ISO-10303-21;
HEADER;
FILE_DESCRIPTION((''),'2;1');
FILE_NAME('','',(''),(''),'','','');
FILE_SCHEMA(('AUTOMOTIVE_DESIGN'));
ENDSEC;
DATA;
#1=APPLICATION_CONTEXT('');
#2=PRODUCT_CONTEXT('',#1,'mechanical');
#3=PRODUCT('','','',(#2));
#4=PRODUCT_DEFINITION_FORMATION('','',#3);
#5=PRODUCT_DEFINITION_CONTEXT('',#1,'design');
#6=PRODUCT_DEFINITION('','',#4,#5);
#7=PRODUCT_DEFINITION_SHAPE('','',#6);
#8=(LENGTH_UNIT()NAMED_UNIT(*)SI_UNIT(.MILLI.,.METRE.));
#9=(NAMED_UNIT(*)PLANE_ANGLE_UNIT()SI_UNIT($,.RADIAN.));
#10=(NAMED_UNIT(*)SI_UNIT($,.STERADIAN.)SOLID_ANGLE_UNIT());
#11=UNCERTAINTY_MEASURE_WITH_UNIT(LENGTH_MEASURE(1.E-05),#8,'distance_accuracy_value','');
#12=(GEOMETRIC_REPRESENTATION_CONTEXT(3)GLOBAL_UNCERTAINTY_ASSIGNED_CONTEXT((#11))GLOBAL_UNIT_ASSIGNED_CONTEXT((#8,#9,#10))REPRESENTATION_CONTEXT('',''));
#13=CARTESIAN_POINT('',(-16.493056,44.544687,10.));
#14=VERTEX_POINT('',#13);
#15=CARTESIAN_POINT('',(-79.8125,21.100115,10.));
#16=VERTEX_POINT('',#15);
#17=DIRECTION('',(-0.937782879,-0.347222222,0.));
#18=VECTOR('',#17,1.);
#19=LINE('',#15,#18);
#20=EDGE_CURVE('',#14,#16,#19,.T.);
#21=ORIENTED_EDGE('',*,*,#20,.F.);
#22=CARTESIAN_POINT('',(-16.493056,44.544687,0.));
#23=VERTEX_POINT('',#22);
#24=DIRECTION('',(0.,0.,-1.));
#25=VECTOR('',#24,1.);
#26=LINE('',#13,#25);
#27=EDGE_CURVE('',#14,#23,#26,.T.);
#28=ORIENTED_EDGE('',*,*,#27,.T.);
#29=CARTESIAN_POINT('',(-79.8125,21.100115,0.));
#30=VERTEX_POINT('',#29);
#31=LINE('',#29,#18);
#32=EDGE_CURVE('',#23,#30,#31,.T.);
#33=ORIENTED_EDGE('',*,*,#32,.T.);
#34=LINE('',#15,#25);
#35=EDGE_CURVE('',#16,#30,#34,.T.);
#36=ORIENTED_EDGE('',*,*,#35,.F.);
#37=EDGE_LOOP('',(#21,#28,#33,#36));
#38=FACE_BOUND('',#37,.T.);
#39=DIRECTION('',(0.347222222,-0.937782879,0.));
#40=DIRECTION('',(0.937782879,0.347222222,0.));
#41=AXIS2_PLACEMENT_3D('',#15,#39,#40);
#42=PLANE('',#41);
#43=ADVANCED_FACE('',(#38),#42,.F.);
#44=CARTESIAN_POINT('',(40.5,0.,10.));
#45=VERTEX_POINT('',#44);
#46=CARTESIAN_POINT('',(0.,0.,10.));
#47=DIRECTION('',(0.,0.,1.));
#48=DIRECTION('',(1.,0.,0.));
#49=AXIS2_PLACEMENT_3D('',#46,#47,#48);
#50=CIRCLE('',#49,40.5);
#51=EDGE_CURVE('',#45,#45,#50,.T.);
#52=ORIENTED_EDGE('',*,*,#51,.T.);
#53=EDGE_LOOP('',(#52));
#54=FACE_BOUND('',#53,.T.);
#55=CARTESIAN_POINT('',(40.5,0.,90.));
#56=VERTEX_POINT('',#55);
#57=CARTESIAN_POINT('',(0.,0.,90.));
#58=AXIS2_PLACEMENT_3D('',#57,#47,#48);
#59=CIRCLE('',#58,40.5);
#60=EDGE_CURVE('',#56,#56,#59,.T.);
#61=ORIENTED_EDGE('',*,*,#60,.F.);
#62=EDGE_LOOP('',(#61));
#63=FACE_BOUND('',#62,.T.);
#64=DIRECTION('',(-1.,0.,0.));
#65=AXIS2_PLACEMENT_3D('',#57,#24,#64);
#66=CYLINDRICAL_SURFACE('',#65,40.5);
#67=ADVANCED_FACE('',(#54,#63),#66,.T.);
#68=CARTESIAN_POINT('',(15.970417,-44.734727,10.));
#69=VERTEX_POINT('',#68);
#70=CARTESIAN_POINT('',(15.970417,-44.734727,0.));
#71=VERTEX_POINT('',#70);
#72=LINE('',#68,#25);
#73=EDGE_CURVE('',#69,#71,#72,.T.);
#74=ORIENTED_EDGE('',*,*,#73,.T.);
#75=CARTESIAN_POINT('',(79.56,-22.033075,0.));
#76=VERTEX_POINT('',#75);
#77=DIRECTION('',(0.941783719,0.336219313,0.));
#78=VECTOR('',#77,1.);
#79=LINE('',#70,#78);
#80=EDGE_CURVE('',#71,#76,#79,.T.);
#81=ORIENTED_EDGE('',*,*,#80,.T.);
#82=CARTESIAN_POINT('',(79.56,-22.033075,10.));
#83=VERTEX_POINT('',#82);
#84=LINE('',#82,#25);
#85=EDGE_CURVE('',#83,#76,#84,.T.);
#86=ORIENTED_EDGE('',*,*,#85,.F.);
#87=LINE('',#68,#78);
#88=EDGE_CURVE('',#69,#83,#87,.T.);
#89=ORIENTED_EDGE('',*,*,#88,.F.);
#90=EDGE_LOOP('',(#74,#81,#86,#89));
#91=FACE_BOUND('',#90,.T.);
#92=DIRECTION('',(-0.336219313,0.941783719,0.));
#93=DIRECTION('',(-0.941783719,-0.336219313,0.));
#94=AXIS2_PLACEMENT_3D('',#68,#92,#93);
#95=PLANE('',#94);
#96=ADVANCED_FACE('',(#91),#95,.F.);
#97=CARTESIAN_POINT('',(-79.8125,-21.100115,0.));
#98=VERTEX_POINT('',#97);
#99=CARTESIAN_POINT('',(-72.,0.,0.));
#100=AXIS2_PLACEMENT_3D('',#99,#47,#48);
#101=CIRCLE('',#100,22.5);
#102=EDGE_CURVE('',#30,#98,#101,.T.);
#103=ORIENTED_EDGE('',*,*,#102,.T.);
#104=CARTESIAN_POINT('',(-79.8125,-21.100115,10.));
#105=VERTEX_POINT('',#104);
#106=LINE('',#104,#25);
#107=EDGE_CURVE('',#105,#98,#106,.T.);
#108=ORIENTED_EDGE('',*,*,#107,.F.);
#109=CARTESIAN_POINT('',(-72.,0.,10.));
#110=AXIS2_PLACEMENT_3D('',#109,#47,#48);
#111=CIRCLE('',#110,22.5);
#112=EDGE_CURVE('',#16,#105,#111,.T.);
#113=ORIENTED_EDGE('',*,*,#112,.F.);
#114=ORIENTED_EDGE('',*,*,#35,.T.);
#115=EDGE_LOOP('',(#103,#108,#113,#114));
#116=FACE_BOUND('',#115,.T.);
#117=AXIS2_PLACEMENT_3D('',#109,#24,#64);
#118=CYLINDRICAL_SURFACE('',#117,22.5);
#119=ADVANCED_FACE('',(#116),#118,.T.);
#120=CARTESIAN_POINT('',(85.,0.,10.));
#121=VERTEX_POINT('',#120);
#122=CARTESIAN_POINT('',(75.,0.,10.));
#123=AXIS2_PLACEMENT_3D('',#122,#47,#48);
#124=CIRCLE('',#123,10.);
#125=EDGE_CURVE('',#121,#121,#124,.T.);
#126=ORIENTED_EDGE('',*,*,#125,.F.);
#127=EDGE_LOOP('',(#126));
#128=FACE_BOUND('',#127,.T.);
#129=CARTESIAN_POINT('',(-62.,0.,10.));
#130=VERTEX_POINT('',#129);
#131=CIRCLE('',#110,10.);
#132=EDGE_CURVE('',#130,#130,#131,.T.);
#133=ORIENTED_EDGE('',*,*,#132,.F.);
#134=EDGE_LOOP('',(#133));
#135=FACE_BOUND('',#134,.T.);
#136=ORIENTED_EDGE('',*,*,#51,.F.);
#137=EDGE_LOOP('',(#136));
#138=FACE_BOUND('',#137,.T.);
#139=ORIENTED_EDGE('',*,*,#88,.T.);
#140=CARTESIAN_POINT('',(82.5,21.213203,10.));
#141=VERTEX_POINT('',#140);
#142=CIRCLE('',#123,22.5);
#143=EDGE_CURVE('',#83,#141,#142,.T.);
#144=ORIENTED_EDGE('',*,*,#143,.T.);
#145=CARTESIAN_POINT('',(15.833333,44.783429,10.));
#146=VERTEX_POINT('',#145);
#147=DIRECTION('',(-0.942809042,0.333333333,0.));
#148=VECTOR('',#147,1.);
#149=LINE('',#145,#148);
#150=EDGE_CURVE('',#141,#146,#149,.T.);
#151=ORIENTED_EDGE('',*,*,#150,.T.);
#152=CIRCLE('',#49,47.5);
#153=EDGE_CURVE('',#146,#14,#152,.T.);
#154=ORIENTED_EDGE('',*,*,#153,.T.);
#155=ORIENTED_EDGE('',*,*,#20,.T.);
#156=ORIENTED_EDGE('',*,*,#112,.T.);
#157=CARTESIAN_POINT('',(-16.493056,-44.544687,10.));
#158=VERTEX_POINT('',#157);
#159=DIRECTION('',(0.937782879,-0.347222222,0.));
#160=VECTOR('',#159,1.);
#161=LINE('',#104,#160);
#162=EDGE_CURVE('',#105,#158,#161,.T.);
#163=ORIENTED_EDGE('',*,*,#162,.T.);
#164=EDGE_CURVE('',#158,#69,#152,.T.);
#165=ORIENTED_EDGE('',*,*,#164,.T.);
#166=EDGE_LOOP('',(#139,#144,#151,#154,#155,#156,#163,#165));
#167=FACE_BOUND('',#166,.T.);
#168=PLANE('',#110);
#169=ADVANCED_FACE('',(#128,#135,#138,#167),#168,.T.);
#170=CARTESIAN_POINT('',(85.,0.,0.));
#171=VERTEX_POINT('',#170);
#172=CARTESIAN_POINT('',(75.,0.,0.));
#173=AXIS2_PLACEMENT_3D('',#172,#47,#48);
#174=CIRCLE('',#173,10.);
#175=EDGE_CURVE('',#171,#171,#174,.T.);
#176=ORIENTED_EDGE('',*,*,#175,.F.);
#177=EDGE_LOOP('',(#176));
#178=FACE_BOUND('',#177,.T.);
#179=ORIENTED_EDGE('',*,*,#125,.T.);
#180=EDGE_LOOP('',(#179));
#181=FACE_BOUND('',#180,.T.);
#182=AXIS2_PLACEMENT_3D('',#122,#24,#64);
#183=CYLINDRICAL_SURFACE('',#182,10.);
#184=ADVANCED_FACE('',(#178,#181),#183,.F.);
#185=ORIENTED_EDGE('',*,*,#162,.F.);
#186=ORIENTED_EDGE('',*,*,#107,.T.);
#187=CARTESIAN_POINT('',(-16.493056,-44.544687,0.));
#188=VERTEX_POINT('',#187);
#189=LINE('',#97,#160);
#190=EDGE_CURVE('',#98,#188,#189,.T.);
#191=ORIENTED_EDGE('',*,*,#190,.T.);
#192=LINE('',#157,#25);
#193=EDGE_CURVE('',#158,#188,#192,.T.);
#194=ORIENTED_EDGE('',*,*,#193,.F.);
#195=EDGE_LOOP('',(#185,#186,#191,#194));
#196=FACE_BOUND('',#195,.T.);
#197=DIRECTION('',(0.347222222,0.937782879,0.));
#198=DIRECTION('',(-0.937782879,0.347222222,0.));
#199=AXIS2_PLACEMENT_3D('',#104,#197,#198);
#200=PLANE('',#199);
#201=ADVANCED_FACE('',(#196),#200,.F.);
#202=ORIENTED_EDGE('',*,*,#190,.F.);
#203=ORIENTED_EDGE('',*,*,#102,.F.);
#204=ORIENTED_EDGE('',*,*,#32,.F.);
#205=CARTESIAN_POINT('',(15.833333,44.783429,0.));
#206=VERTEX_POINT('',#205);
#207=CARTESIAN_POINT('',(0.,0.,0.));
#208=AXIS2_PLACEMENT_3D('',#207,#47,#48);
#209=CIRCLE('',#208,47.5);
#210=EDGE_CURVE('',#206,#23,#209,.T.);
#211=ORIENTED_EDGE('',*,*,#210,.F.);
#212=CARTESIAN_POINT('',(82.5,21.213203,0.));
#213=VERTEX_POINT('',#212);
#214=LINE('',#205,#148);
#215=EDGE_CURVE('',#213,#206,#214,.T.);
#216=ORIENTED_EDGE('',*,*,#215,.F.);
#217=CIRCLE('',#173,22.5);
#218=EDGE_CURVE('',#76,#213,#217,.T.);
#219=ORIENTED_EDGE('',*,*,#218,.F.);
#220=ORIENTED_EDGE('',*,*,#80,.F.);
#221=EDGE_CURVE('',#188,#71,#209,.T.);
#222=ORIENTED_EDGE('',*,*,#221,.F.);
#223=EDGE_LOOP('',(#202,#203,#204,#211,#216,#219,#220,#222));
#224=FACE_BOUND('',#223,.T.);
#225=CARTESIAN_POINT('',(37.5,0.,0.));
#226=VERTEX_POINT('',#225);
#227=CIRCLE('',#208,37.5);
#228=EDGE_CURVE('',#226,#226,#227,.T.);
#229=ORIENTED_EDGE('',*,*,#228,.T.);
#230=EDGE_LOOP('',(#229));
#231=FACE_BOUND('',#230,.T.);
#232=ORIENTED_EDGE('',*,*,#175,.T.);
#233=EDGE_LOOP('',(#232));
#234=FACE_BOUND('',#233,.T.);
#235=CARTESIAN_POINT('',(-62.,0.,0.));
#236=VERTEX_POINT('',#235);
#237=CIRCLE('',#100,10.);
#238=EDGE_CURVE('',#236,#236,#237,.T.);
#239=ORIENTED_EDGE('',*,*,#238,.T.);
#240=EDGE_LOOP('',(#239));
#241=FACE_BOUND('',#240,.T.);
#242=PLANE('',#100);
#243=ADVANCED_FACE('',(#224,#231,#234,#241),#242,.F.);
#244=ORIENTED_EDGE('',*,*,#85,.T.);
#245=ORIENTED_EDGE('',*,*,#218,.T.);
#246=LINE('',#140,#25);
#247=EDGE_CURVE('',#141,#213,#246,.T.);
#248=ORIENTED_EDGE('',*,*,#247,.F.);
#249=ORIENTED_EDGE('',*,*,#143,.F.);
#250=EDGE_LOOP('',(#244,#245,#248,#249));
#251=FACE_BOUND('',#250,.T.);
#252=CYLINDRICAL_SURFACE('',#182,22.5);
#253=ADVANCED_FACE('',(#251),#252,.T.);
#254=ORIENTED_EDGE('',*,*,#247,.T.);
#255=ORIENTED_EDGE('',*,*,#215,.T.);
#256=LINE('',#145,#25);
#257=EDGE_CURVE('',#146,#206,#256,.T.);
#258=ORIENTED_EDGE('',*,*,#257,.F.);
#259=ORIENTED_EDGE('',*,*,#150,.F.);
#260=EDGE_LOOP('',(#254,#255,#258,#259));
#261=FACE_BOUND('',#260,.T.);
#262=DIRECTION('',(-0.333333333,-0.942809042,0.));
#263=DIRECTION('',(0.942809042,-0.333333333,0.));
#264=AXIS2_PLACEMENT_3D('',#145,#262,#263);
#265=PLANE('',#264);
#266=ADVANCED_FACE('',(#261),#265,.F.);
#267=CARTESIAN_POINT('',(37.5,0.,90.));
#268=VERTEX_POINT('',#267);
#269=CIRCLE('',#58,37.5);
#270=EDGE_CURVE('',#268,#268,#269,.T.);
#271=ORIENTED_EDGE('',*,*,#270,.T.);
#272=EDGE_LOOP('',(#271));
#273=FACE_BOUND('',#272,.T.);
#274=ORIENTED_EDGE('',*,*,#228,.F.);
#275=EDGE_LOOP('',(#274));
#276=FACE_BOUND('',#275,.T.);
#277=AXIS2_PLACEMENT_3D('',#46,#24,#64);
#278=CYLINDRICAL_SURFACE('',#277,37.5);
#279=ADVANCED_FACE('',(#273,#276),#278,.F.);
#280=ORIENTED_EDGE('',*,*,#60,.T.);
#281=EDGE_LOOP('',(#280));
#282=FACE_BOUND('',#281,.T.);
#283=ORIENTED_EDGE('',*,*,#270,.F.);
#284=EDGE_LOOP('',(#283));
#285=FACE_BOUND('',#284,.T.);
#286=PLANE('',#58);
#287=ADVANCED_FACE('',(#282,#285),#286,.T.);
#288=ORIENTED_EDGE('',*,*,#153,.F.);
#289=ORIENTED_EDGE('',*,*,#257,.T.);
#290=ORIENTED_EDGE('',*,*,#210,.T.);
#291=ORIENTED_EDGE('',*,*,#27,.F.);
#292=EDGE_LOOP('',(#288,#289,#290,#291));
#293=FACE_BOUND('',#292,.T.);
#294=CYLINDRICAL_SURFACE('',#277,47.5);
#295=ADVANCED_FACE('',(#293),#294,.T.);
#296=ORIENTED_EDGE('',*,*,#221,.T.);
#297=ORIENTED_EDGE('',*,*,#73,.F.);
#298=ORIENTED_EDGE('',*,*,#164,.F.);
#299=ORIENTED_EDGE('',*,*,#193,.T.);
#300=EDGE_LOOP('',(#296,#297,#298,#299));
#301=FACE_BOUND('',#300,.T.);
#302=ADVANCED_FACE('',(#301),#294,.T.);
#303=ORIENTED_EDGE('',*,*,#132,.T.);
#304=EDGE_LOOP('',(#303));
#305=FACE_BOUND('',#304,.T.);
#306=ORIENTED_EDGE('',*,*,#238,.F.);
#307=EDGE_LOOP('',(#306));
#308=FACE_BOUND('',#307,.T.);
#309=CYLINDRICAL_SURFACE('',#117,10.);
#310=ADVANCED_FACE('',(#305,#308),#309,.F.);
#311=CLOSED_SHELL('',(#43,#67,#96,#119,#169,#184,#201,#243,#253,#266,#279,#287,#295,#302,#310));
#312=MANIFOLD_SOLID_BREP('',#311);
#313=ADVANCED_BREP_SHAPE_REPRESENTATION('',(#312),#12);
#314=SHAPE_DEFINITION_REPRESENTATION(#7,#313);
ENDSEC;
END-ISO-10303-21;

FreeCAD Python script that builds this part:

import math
import FreeCAD as App
import Part
import Sketcher
from FreeCAD import Vector
Q = App.Units.Quantity

doc = App.newDocument("Part")
params = doc.addObject("Spreadsheet::Sheet", "Params")
for row, (alias, value) in enumerate([
    ("sketch1_diameter", "20 mm"),
    ("sketch1_diameter2", "75 mm"),
    ("sketch1_radius", "22.5 mm"),
    ("sketch1_radius2", "47.5 mm"),
    ("pad1_length", "10 mm"),
    ("sketch2_diameter", "81 mm"),
    ("sketch2_diameter2", "75 mm"),
    ("pad2_length", "80 mm"),
], start=1):
    params.set(f"A{row}", alias)
    params.set(f"B{row}", "=" + value)
    params.setAlias(f"B{row}", alias)

body = doc.addObject("PartDesign::Body", "Body")

sketch1 = body.newObject("Sketcher::SketchObject", "Sketch")
sketch1.AttachmentSupport = (doc.getObject("XY_Plane"), [""])
sketch1.MapMode = "FlatFace"
sketch1.addGeometry([
    Part.LineSegment(Vector(-16.493056, 44.544687, 0), Vector(-79.8125, 21.100115, 0)),
    Part.ArcOfCircle(Part.Circle(Vector(-72, 0, 0), Vector(0, 0, 1), 22.5), math.radians(110.317508), math.radians(249.682492)),
    Part.LineSegment(Vector(-79.8125, -21.100115, 0), Vector(-16.493056, -44.544687, 0)),
    Part.ArcOfCircle(Part.Circle(Vector(0, 0, 0), Vector(0, 0, 1), 47.5), math.radians(-110.317508), math.radians(-70.353299)),
    Part.LineSegment(Vector(15.970417, -44.734727, 0), Vector(79.56, -22.033075, 0)),
    Part.ArcOfCircle(Part.Circle(Vector(75, 0, 0), Vector(0, 0, 1), 22.5), math.radians(-78.307058), math.radians(70.528779)),
    Part.LineSegment(Vector(82.5, 21.213203, 0), Vector(15.833333, 44.783429, 0)),
    Part.ArcOfCircle(Part.Circle(Vector(0, 0, 0), Vector(0, 0, 1), 47.5), math.radians(70.528779), math.radians(110.317508)),
    Part.Circle(Vector(75, 0, 0), Vector(0, 0, 1), 10),
    Part.Circle(Vector(0, 0, 0), Vector(0, 0, 1), 37.5),
    Part.Circle(Vector(-72, 0, 0), Vector(0, 0, 1), 10),
], False)
sketch1.addConstraint([
    Sketcher.Constraint("Tangent", 0, 2, 1, 1),
    Sketcher.Constraint("Tangent", 1, 2, 2, 1),
    Sketcher.Constraint("Tangent", 2, 2, 3, 1),
    Sketcher.Constraint("Tangent", 3, 2, 4, 1),
    Sketcher.Constraint("Coincident", 4, 2, 5, 1),
    Sketcher.Constraint("Tangent", 5, 2, 6, 1),
    Sketcher.Constraint("Tangent", 6, 2, 7, 1),
    Sketcher.Constraint("Tangent", 7, 2, 0, 1),
    Sketcher.Constraint("Coincident", 3, 3, -1, 1),
    Sketcher.Constraint("Coincident", 7, 3, -1, 1),
    Sketcher.Constraint("Coincident", 9, 3, -1, 1),
    Sketcher.Constraint("Coincident", 8, 3, 5, 3),
    Sketcher.Constraint("Coincident", 10, 3, 1, 3),
    Sketcher.Constraint("Equal", 1, 5),
    Sketcher.Constraint("Equal", 3, 7),
    Sketcher.Constraint("Equal", 8, 10),
    Sketcher.Constraint("PointOnObject", 1, 3, -1),
    Sketcher.Constraint("PointOnObject", 5, 3, -1),
    Sketcher.Constraint("Equal", 2, 4),
    Sketcher.Constraint("Diameter", 8, Q("20 mm")),
    Sketcher.Constraint("Diameter", 9, Q("75 mm")),
    Sketcher.Constraint("Radius", 1, Q("22.5 mm")),
    Sketcher.Constraint("Radius", 3, Q("47.5 mm")),
    Sketcher.Constraint("DistanceX", 1, 3, -1, 1, Q("72 mm")),
    Sketcher.Constraint("DistanceX", -1, 1, 5, 3, Q("75 mm")),
])
sketch1.setExpression("Constraints[19]", "Params.sketch1_diameter")
sketch1.setExpression("Constraints[20]", "Params.sketch1_diameter2")
sketch1.setExpression("Constraints[21]", "Params.sketch1_radius")
sketch1.setExpression("Constraints[22]", "Params.sketch1_radius2")
pad1 = body.newObject("PartDesign::Pad", "Pad")
pad1.Profile = sketch1
pad1.setExpression("Length", "Params.pad1_length")

sketch2 = body.newObject("Sketcher::SketchObject", "Sketch001")
sketch2.AttachmentSupport = (doc.getObject("XY_Plane"), [""])
sketch2.MapMode = "FlatFace"
sketch2.AttachmentOffset = App.Placement(Vector(0, 0, 10), App.Rotation())
sketch2.addGeometry([
    Part.Circle(Vector(0, 0, 0), Vector(0, 0, 1), 40.5),
    Part.Circle(Vector(0, 0, 0), Vector(0, 0, 1), 37.5),
], False)
sketch2.addConstraint([
    Sketcher.Constraint("Coincident", 0, 3, -1, 1),
    Sketcher.Constraint("Coincident", 1, 3, -1, 1),
    Sketcher.Constraint("Diameter", 0, Q("81 mm")),
    Sketcher.Constraint("Diameter", 1, Q("75 mm")),
])
sketch2.setExpression("Constraints[2]", "Params.sketch2_diameter")
sketch2.setExpression("Constraints[3]", "Params.sketch2_diameter2")
pad2 = body.newObject("PartDesign::Pad", "Pad001")
pad2.Profile = sketch2
pad2.setExpression("Length", "Params.pad2_length")

doc.recompute()
